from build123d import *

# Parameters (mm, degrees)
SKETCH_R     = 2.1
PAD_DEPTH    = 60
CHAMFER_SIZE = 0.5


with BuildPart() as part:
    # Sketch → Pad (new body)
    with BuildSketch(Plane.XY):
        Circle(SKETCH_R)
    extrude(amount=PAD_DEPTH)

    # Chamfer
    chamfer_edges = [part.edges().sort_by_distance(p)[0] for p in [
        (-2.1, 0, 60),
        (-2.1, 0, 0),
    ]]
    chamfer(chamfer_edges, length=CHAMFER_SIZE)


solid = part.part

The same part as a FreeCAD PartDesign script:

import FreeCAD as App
import Part
import Sketcher

V = App.Vector
Q = App.Units.Quantity


def edges_at(feature, points):
    """Names of the edges that pass closest to the given points."""
    edges = feature.Shape.Edges
    near = lambda p: min(range(len(edges)), key=lambda i: edges[i].distToShape(Part.Vertex(*p))[0])
    return sorted({f"Edge{near(p) + 1}" for p in points})

doc = App.newDocument("Part")
params = doc.addObject("Spreadsheet::Sheet", "Params")
for row, (alias, value) in enumerate([
    ("sketch1_diameter", "4.2 mm"),
    ("pad1_length", "60 mm"),
    ("chamfer_size", "0.5 mm"),
], start=1):
    params.set(f"A{row}", alias)
    params.set(f"B{row}", "=" + value)
    params.setAlias(f"B{row}", alias)

body = doc.addObject("PartDesign::Body", "Body")

sketch1 = body.newObject("Sketcher::SketchObject", "Sketch")
sketch1.AttachmentSupport = (doc.getObject("XY_Plane"), [""])
sketch1.MapMode = "FlatFace"
sketch1.addGeometry(Part.Circle(V(0, 0, 0), V(0, 0, 1), 2.1), False)
sketch1.addConstraint(Sketcher.Constraint("Coincident", 0, 3, -1, 1))
sketch1.addConstraint(Sketcher.Constraint("Diameter", 0, Q("4.2 mm")))
sketch1.setExpression("Constraints[1]", "Params.sketch1_diameter")
pad1 = body.newObject("PartDesign::Pad", "Pad")
pad1.Profile = sketch1
pad1.setExpression("Length", "Params.pad1_length")
doc.recompute()

chamfer = body.newObject("PartDesign::Chamfer", "Chamfer")
chamfer.Base = (pad1, edges_at(pad1, [(-2.1, 0, 60), (-2.1, 0, 0)]))
chamfer.setExpression("Size", "Params.chamfer_size")

doc.recompute()
